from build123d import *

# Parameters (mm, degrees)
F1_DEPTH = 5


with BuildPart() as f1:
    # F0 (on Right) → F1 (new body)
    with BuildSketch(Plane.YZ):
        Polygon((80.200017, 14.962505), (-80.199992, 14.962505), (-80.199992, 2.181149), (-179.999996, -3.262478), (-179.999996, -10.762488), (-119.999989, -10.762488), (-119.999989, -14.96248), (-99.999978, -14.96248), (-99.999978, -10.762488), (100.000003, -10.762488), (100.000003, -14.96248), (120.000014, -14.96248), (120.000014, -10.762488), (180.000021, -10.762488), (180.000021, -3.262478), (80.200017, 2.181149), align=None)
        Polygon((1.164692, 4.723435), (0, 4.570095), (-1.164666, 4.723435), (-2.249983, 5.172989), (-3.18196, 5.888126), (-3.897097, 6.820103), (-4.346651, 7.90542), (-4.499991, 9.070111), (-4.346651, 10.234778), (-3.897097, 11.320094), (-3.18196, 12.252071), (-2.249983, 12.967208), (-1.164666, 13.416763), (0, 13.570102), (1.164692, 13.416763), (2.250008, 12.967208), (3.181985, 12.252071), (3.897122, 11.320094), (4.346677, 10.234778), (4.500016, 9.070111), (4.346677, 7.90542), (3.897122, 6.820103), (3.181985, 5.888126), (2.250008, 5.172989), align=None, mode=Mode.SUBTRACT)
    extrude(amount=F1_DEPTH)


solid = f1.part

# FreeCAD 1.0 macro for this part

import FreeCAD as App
import Part
import Sketcher

V = App.Vector

doc = App.newDocument("Part")
params = doc.addObject("Spreadsheet::Sheet", "Params")
for row, (alias, value) in enumerate([
    ("pad1_length", "5 mm"),
], start=1):
    params.set(f"A{row}", alias)
    params.set(f"B{row}", "=" + value)
    params.setAlias(f"B{row}", alias)

body = doc.addObject("PartDesign::Body", "Body")

# Sketch on YZ plane
sketch1 = body.newObject("Sketcher::SketchObject", "Sketch")
sketch1.AttachmentSupport = (doc.getObject("YZ_Plane"), [""])
sketch1.MapMode = "FlatFace"
sketch1.addGeometry(Part.LineSegment(V(80.200017, 14.962505, 0), V(-80.199992, 14.962505, 0)), False)
sketch1.addGeometry(Part.LineSegment(V(-80.199992, 14.962505, 0), V(-80.199992, 2.181149, 0)), False)
sketch1.addGeometry(Part.LineSegment(V(-80.199992, 2.181149, 0), V(-179.999996, -3.262478, 0)), False)
sketch1.addGeometry(Part.LineSegment(V(-179.999996, -3.262478, 0), V(-179.999996, -10.762488, 0)), False)
sketch1.addGeometry(Part.LineSegment(V(-179.999996, -10.762488, 0), V(-119.999989, -10.762488, 0)), False)
sketch1.addGeometry(Part.LineSegment(V(-119.999989, -10.762488, 0), V(-119.999989, -14.96248, 0)), False)
sketch1.addGeometry(Part.LineSegment(V(-119.999989, -14.96248, 0), V(-99.999978, -14.96248, 0)), False)
sketch1.addGeometry(Part.LineSegment(V(-99.999978, -14.96248, 0), V(-99.999978, -10.762488, 0)), False)
sketch1.addGeometry(Part.LineSegment(V(-99.999978, -10.762488, 0), V(100.000003, -10.762488, 0)), False)
sketch1.addGeometry(Part.LineSegment(V(100.000003, -10.762488, 0), V(100.000003, -14.96248, 0)), False)
sketch1.addGeometry(Part.LineSegment(V(100.000003, -14.96248, 0), V(120.000014, -14.96248, 0)), False)
sketch1.addGeometry(Part.LineSegment(V(120.000014, -14.96248, 0), V(120.000014, -10.762488, 0)), False)
sketch1.addGeometry(Part.LineSegment(V(120.000014, -10.762488, 0), V(180.000021, -10.762488, 0)), False)
sketch1.addGeometry(Part.LineSegment(V(180.000021, -10.762488, 0), V(180.000021, -3.262478, 0)), False)
sketch1.addGeometry(Part.LineSegment(V(180.000021, -3.262478, 0), V(80.200017, 2.181149, 0)), False)
sketch1.addGeometry(Part.LineSegment(V(80.200017, 2.181149, 0), V(80.200017, 14.962505, 0)), False)
sketch1.addGeometry(Part.LineSegment(V(2.250008, 5.172989, 0), V(1.164692, 4.723435, 0)), False)
sketch1.addGeometry(Part.LineSegment(V(1.164692, 4.723435, 0), V(0, 4.570095, 0)), False)
sketch1.addGeometry(Part.LineSegment(V(0, 4.570095, 0), V(-1.164666, 4.723435, 0)), False)
sketch1.addGeometry(Part.LineSegment(V(-1.164666, 4.723435, 0), V(-2.249983, 5.172989, 0)), False)
sketch1.addGeometry(Part.LineSegment(V(-2.249983, 5.172989, 0), V(-3.18196, 5.888126, 0)), False)
sketch1.addGeometry(Part.LineSegment(V(-3.18196, 5.888126, 0), V(-3.897097, 6.820103, 0)), False)
sketch1.addGeometry(Part.LineSegment(V(-3.897097, 6.820103, 0), V(-4.346651, 7.90542, 0)), False)
sketch1.addGeometry(Part.LineSegment(V(-4.346651, 7.90542, 0), V(-4.499991, 9.070111, 0)), False)
sketch1.addGeometry(Part.LineSegment(V(-4.499991, 9.070111, 0), V(-4.346651, 10.234778, 0)), False)
sketch1.addGeometry(Part.LineSegment(V(-4.346651, 10.234778, 0), V(-3.897097, 11.320094, 0)), False)
sketch1.addGeometry(Part.LineSegment(V(-3.897097, 11.320094, 0), V(-3.18196, 12.252071, 0)), False)
sketch1.addGeometry(Part.LineSegment(V(-3.18196, 12.252071, 0), V(-2.249983, 12.967208, 0)), False)
sketch1.addGeometry(Part.LineSegment(V(-2.249983, 12.967208, 0), V(-1.164666, 13.416763, 0)), False)
sketch1.addGeometry(Part.LineSegment(V(-1.164666, 13.416763, 0), V(0, 13.570102, 0)), False)
sketch1.addGeometry(Part.LineSegment(V(0, 13.570102, 0), V(1.164692, 13.416763, 0)), False)
sketch1.addGeometry(Part.LineSegment(V(1.164692, 13.416763, 0), V(2.250008, 12.967208, 0)), False)
sketch1.addGeometry(Part.LineSegment(V(2.250008, 12.967208, 0), V(3.181985, 12.252071, 0)), False)
sketch1.addGeometry(Part.LineSegment(V(3.181985, 12.252071, 0), V(3.897122, 11.320094, 0)), False)
sketch1.addGeometry(Part.LineSegment(V(3.897122, 11.320094, 0), V(4.346677, 10.234778, 0)), False)
sketch1.addGeometry(Part.LineSegment(V(4.346677, 10.234778, 0), V(4.500016, 9.070111, 0)), False)
sketch1.addGeometry(Part.LineSegment(V(4.500016, 9.070111, 0), V(4.346677, 7.90542, 0)), False)
sketch1.addGeometry(Part.LineSegment(V(4.346677, 7.90542, 0), V(3.897122, 6.820103, 0)), False)
sketch1.addGeometry(Part.LineSegment(V(3.897122, 6.820103, 0), V(3.181985, 5.888126, 0)), False)
sketch1.addGeometry(Part.LineSegment(V(3.181985, 5.888126, 0), V(2.250008, 5.172989, 0)), False)
sketch1.addConstraint(Sketcher.Constraint("Coincident", 0, 2, 1, 1))
sketch1.addConstraint(Sketcher.Constraint("Coincident", 1, 2, 2, 1))
sketch1.addConstraint(Sketcher.Constraint("Coincident", 2, 2, 3, 1))
sketch1.addConstraint(Sketcher.Constraint("Coincident", 3, 2, 4, 1))
sketch1.addConstraint(Sketcher.Constraint("Coincident", 4, 2, 5, 1))
sketch1.addConstraint(Sketcher.Constraint("Coincident", 5, 2, 6, 1))
sketch1.addConstraint(Sketcher.Constraint("Coincident", 6, 2, 7, 1))
sketch1.addConstraint(Sketcher.Constraint("Coincident", 7, 2, 8, 1))
sketch1.addConstraint(Sketcher.Constraint("Coincident", 8, 2, 9, 1))
sketch1.addConstraint(Sketcher.Constraint("Coincident", 9, 2, 10, 1))
sketch1.addConstraint(Sketcher.Constraint("Coincident", 10, 2, 11, 1))
sketch1.addConstraint(Sketcher.Constraint("Coincident", 11, 2, 12, 1))
sketch1.addConstraint(Sketcher.Constraint("Coincident", 12, 2, 13, 1))
sketch1.addConstraint(Sketcher.Constraint("Coincident", 13, 2, 14, 1))
sketch1.addConstraint(Sketcher.Constraint("Coincident", 14, 2, 15, 1))
sketch1.addConstraint(Sketcher.Constraint("Coincident", 15, 2, 0, 1))
sketch1.addConstraint(Sketcher.Constraint("Coincident", 16, 2, 17, 1))
sketch1.addConstraint(Sketcher.Constraint("Coincident", 17, 2, 18, 1))
sketch1.addConstraint(Sketcher.Constraint("Coincident", 18, 2, 19, 1))
sketch1.addConstraint(Sketcher.Constraint("Coincident", 19, 2, 20, 1))
sketch1.addConstraint(Sketcher.Constraint("Coincident", 20, 2, 21, 1))
sketch1.addConstraint(Sketcher.Constraint("Coincident", 21, 2, 22, 1))
sketch1.addConstraint(Sketcher.Constraint("Coincident", 22, 2, 23, 1))
sketch1.addConstraint(Sketcher.Constraint("Coincident", 23, 2, 24, 1))
sketch1.addConstraint(Sketcher.Constraint("Coincident", 24, 2, 25, 1))
sketch1.addConstraint(Sketcher.Constraint("Coincident", 25, 2, 26, 1))
sketch1.addConstraint(Sketcher.Constraint("Coincident", 26, 2, 27, 1))
sketch1.addConstraint(Sketcher.Constraint("Coincident", 27, 2, 28, 1))
sketch1.addConstraint(Sketcher.Constraint("Coincident", 28, 2, 29, 1))
sketch1.addConstraint(Sketcher.Constraint("Coincident", 29, 2, 30, 1))
sketch1.addConstraint(Sketcher.Constraint("Coincident", 30, 2, 31, 1))
sketch1.addConstraint(Sketcher.Constraint("Coincident", 31, 2, 32, 1))
sketch1.addConstraint(Sketcher.Constraint("Coincident", 32, 2, 33, 1))
sketch1.addConstraint(Sketcher.Constraint("Coincident", 33, 2, 34, 1))
sketch1.addConstraint(Sketcher.Constraint("Coincident", 34, 2, 35, 1))
sketch1.addConstraint(Sketcher.Constraint("Coincident", 35, 2, 36, 1))
sketch1.addConstraint(Sketcher.Constraint("Coincident", 36, 2, 37, 1))
sketch1.addConstraint(Sketcher.Constraint("Coincident", 37, 2, 38, 1))
sketch1.addConstraint(Sketcher.Constraint("Coincident", 38, 2, 39, 1))
sketch1.addConstraint(Sketcher.Constraint("Coincident", 39, 2, 16, 1))
sketch1.addConstraint(Sketcher.Constraint("Horizontal", 0))
sketch1.addConstraint(Sketcher.Constraint("Vertical", 1))
sketch1.addConstraint(Sketcher.Constraint("Vertical", 3))
sketch1.addConstraint(Sketcher.Constraint("Horizontal", 4))
sketch1.addConstraint(Sketcher.Constraint("Vertical", 5))
sketch1.addConstraint(Sketcher.Constraint("Horizontal", 6))
sketch1.addConstraint(Sketcher.Constraint("Vertical", 7))
sketch1.addConstraint(Sketcher.Constraint("Horizontal", 8))
sketch1.addConstraint(Sketcher.Constraint("Vertical", 9))
sketch1.addConstraint(Sketcher.Constraint("Horizontal", 10))
sketch1.addConstraint(Sketcher.Constraint("Vertical", 11))
sketch1.addConstraint(Sketcher.Constraint("Horizontal", 12))
sketch1.addConstraint(Sketcher.Constraint("Vertical", 13))
sketch1.addConstraint(Sketcher.Constraint("Vertical", 15))
sketch1.addConstraint(Sketcher.Constraint("PointOnObject", 17, 2, -2))
sketch1.addConstraint(Sketcher.Constraint("PointOnObject", 29, 2, -2))
sketch1.addConstraint(Sketcher.Constraint("DistanceX", 0, 2, 0, 1, 160.400009))
sketch1.addConstraint(Sketcher.Constraint("DistanceX", 6, 1, 6, 2, 20.000011))
sketch1.addConstraint(Sketcher.Constraint("DistanceX", 8, 1, 8, 2, 199.999981))
sketch1.addConstraint(Sketcher.Constraint("DistanceX", 10, 1, 10, 2, 20.000011))
sketch1.addConstraint(Sketcher.Constraint("DistanceY", 3, 2, 3, 1, 7.50001))
sketch1.addConstraint(Sketcher.Constraint("DistanceY", 13, 1, 13, 2, 7.50001))
sketch1.addConstraint(Sketcher.Constraint("Distance", 16, 1.174738))
sketch1.addConstraint(Sketcher.Constraint("Distance", 19, 1.174739))
sketch1.addConstraint(Sketcher.Constraint("Distance", 22, 1.174739))
sketch1.addConstraint(Sketcher.Constraint("Distance", 23, 1.174742))
sketch1.addConstraint(Sketcher.Constraint("Distance", 25, 1.174738))
sketch1.addConstraint(Sketcher.Constraint("Distance", 28, 1.174739))
sketch1.addConstraint(Sketcher.Constraint("Distance", 31, 1.174738))
sketch1.addConstraint(Sketcher.Constraint("Distance", 34, 1.174738))
sketch1.addConstraint(Sketcher.Constraint("Distance", 36, 1.174742))
sketch1.addConstraint(Sketcher.Constraint("Distance", 37, 1.174739))
sketch1.addConstraint(Sketcher.Constraint("DistanceX", 4, 1, 4, 2, 60.000007))
sketch1.addConstraint(Sketcher.Constraint("DistanceX", 12, 1, 12, 2, 60.000007))
sketch1.addConstraint(Sketcher.Constraint("DistanceY", 1, 2, 1, 1, 12.781356))
sketch1.addConstraint(Sketcher.Constraint("DistanceY", 5, 2, 5, 1, 4.199992))
sketch1.addConstraint(Sketcher.Constraint("DistanceY", 7, 1, 7, 2, 4.199992))
sketch1.addConstraint(Sketcher.Constraint("DistanceY", 9, 2, 9, 1, 4.199992))
sketch1.addConstraint(Sketcher.Constraint("DistanceY", 11, 1, 11, 2, 4.199992))
sketch1.addConstraint(Sketcher.Constraint("DistanceY", 15, 1, 15, 2, 12.781356))
sketch1.addConstraint(Sketcher.Constraint("DistanceX", 0, 2, -1, 1, 80.199992))
sketch1.addConstraint(Sketcher.Constraint("DistanceY", -1, 1, 1, 2, 2.181149))
sketch1.addConstraint(Sketcher.Constraint("DistanceY", 2, 2, -1, 1, 3.262478))
sketch1.addConstraint(Sketcher.Constraint("DistanceX", 4, 2, -1, 1, 119.999989))
sketch1.addConstraint(Sketcher.Constraint("DistanceY", -1, 1, 19, 2, 5.172989))
sketch1.addConstraint(Sketcher.Constraint("DistanceX", 20, 2, -1, 1, 3.18196))
sketch1.addConstraint(Sketcher.Constraint("DistanceX", 22, 2, -1, 1, 4.346651))
sketch1.addConstraint(Sketcher.Constraint("DistanceY", -1, 1, 22, 2, 7.90542))
sketch1.addConstraint(Sketcher.Constraint("DistanceX", 23, 2, -1, 1, 4.499991))
sketch1.addConstraint(Sketcher.Constraint("DistanceX", 24, 2, -1, 1, 4.346651))
sketch1.addConstraint(Sketcher.Constraint("DistanceX", 26, 2, -1, 1, 3.18196))
sketch1.addConstraint(Sketcher.Constraint("DistanceY", -1, 1, 26, 2, 12.252071))
sketch1.addConstraint(Sketcher.Constraint("DistanceY", -1, 1, 32, 2, 12.252071))
sketch1.addConstraint(Sketcher.Constraint("DistanceX", -1, 1, 33, 2, 3.897122))
sketch1.addConstraint(Sketcher.Constraint("DistanceY", -1, 1, 35, 2, 9.070111))
sketch1.addConstraint(Sketcher.Constraint("DistanceY", -1, 1, 36, 2, 7.90542))
sketch1.addConstraint(Sketcher.Constraint("DistanceX", -1, 1, 37, 2, 3.897122))
sketch1.addConstraint(Sketcher.Constraint("DistanceY", -1, 1, 39, 2, 5.172989))
sketch1.addConstraint(Sketcher.Constraint("DistanceY", 16, 2, 15, 2, 10.23907))
sketch1.addConstraint(Sketcher.Constraint("DistanceX", 16, 2, 8, 2, 98.835311))
sketch1.addConstraint(Sketcher.Constraint("DistanceY", 17, 2, 16, 2, 0.15334))
sketch1.addConstraint(Sketcher.Constraint("DistanceY", 17, 2, 18, 2, 0.15334))
sketch1.addConstraint(Sketcher.Constraint("DistanceX", 18, 2, 16, 2, 2.329358))
sketch1.addConstraint(Sketcher.Constraint("DistanceY", 18, 2, 20, 2, 1.164691))
sketch1.addConstraint(Sketcher.Constraint("DistanceX", 21, 2, 18, 2, 2.732431))
sketch1.addConstraint(Sketcher.Constraint("DistanceY", 22, 2, 24, 2, 2.329358))
sketch1.addConstraint(Sketcher.Constraint("DistanceY", 21, 2, 25, 2, 4.499991))
sketch1.addConstraint(Sketcher.Constraint("DistanceY", 24, 2, 27, 2, 2.73243))
sketch1.addConstraint(Sketcher.Constraint("DistanceY", 26, 2, 28, 2, 1.164692))
sketch1.addConstraint(Sketcher.Constraint("DistanceX", 25, 2, 28, 2, 2.732431))
sketch1.addConstraint(Sketcher.Constraint("DistanceY", 28, 2, 29, 2, 0.153339))
sketch1.addConstraint(Sketcher.Constraint("DistanceY", 30, 2, 29, 2, 0.153339))
sketch1.addConstraint(Sketcher.Constraint("DistanceX", 28, 2, 30, 2, 2.329358))
sketch1.addConstraint(Sketcher.Constraint("DistanceX", 27, 2, 31, 2, 4.499991))
sketch1.addConstraint(Sketcher.Constraint("DistanceX", 28, 2, 32, 2, 4.346651))
sketch1.addConstraint(Sketcher.Constraint("DistanceY", 33, 2, 30, 2, 2.096669))
sketch1.addConstraint(Sketcher.Constraint("DistanceX", 32, 2, 34, 2, 1.164692))
sketch1.addConstraint(Sketcher.Constraint("DistanceX", 34, 2, 35, 2, 0.153339))
sketch1.addConstraint(Sketcher.Constraint("DistanceY", 16, 2, 38, 2, 1.164691))
sketch1.addConstraint(Sketcher.Constraint("DistanceX", 38, 2, 36, 2, 1.164692))
pad1 = body.newObject("PartDesign::Pad", "Pad")
pad1.Profile = sketch1
pad1.setExpression("Length", "Params.pad1_length")

doc.recompute()
